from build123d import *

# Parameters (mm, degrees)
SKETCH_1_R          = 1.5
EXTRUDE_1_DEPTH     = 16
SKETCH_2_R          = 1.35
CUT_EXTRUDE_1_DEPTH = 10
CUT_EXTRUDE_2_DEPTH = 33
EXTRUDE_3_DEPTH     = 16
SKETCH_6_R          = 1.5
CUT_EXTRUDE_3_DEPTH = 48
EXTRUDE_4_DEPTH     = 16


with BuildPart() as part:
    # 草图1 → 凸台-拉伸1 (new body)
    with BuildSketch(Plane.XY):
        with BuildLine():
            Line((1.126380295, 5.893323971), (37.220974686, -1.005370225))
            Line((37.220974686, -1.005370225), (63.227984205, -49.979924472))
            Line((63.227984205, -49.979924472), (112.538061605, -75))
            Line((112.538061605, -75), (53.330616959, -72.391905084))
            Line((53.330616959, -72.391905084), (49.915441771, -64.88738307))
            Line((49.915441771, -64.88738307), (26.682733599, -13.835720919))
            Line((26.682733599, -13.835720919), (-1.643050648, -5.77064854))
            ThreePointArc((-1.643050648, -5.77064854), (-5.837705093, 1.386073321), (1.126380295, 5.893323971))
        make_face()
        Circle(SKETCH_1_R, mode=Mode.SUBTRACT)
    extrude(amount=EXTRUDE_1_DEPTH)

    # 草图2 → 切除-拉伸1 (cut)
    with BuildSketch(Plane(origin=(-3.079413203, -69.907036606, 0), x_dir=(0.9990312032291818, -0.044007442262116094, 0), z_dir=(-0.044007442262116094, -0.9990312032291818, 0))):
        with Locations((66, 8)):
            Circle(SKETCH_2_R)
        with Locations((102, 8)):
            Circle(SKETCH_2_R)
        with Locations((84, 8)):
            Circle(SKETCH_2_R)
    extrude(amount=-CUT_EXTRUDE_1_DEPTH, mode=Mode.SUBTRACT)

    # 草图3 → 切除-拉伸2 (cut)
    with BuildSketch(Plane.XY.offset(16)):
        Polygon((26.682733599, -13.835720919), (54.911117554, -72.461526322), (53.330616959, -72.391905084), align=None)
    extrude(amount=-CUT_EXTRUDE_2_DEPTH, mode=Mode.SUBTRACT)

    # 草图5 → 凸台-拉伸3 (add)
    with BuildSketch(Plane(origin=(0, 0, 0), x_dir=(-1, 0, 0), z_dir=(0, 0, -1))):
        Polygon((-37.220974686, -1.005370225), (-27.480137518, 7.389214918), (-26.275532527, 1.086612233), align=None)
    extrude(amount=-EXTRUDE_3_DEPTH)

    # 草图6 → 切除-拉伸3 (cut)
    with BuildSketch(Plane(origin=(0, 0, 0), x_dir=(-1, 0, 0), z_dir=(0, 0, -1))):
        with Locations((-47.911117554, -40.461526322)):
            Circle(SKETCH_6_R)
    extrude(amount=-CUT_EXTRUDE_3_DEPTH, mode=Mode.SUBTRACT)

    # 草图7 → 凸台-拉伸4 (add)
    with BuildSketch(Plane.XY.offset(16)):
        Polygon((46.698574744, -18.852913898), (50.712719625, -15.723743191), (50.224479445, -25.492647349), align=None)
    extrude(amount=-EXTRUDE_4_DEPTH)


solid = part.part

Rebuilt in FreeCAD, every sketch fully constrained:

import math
import FreeCAD as App
import Part
import Sketcher
from FreeCAD import Vector

doc = App.newDocument("Part")
body = doc.addObject("PartDesign::Body", "Body")

sketch1 = body.newObject("Sketcher::SketchObject", "Sketch")
sketch1.AttachmentSupport = (doc.getObject("XY_Plane"), [""])
sketch1.MapMode = "FlatFace"
sketch1.addGeometry(Part.LineSegment(Vector(37.2, -1, 0), Vector(1.1, 5.9, 0)), False)
sketch1.addGeometry(Part.ArcOfCircle(Part.Circle(Vector(0, 0, 0), Vector(0, 0, 1), 6), math.radians(79), math.radians(254)), False)
sketch1.addGeometry(Part.LineSegment(Vector(-1.6, -5.8, 0), Vector(26.7, -13.8, 0)), False)
sketch1.addGeometry(Part.LineSegment(Vector(26.7, -13.8, 0), Vector(49.9, -64.9, 0)), False)
sketch1.addGeometry(Part.LineSegment(Vector(49.9, -64.9, 0), Vector(53.3, -72.4, 0)), False)
sketch1.addGeometry(Part.LineSegment(Vector(53.3, -72.4, 0), Vector(112.5, -75, 0)), False)
sketch1.addGeometry(Part.LineSegment(Vector(112.5, -75, 0), Vector(63.2, -50, 0)), False)
sketch1.addGeometry(Part.LineSegment(Vector(63.2, -50, 0), Vector(37.2, -1, 0)), False)
sketch1.addGeometry(Part.Circle(Vector(0, 0, 0), Vector(0, 0, 1), 1.5), False)
sketch1.addConstraint(Sketcher.Constraint("Tangent", 0, 2, 1, 1))
sketch1.addConstraint(Sketcher.Constraint("Tangent", 1, 2, 2, 1))
sketch1.addConstraint(Sketcher.Constraint("Coincident", 2, 2, 3, 1))
sketch1.addConstraint(Sketcher.Constraint("Coincident", 3, 2, 4, 1))
sketch1.addConstraint(Sketcher.Constraint("Coincident", 4, 2, 5, 1))
sketch1.addConstraint(Sketcher.Constraint("Coincident", 5, 2, 6, 1))
sketch1.addConstraint(Sketcher.Constraint("Coincident", 6, 2, 7, 1))
sketch1.addConstraint(Sketcher.Constraint("Coincident", 7, 2, 0, 1))
sketch1.addConstraint(Sketcher.Constraint("Coincident", 1, 3, -1, 1))
sketch1.addConstraint(Sketcher.Constraint("Coincident", 8, 3, -1, 1))
sketch1.addConstraint(Sketcher.Constraint("Parallel", 3, 4))
sketch1.addConstraint(Sketcher.Constraint("Diameter", 8, 3.0))
sketch1.addConstraint(Sketcher.Constraint("Radius", 1, 6.0))
sketch1.addConstraint(Sketcher.Constraint("DistanceY", 5, 2, -1, 1, 75.0))
sketch1.addConstraint(Sketcher.Constraint("Distance", 0, 36.747949))
sketch1.addConstraint(Sketcher.Constraint("Distance", 3, 56.08949))
sketch1.addConstraint(Sketcher.Constraint("Distance", 5, 59.26486))
sketch1.addConstraint(Sketcher.Constraint("DistanceX", -1, 1, 0, 2, 1.12638))
sketch1.addConstraint(Sketcher.Constraint("DistanceX", 1, 2, -1, 1, 1.643051))
sketch1.addConstraint(Sketcher.Constraint("DistanceY", 2, 2, -1, 1, 13.835721))
sketch1.addConstraint(Sketcher.Constraint("DistanceX", -1, 1, 3, 2, 49.915442))
sketch1.addConstraint(Sketcher.Constraint("DistanceX", -1, 1, 5, 2, 112.538062))
sketch1.addConstraint(Sketcher.Constraint("DistanceY", 3, 2, 6, 2, 14.907459))
sketch1.addConstraint(Sketcher.Constraint("DistanceX", 2, 2, 6, 2, 36.545251))
pad1 = body.newObject("PartDesign::Pad", "Pad")
pad1.Profile = sketch1
pad1.Length = 16

sketch2 = body.newObject("Sketcher::SketchObject", "Sketch001")
sketch2.Placement = App.Placement(Vector(-3.079413, -69.907037, 0), App.Rotation(Vector(0.999031203, -0.044007442, 0), Vector(0, 0, 1), Vector(-0.044007442, -0.999031203, 0), "ZXY"))
sketch2.addGeometry(Part.Circle(Vector(66, 8, 0), Vector(0, 0, 1), 1.4), False)
sketch2.addGeometry(Part.Circle(Vector(102, 8, 0), Vector(0, 0, 1), 1.4), False)
sketch2.addGeometry(Part.Circle(Vector(84, 8, 0), Vector(0, 0, 1), 1.4), False)
sketch2.addConstraint(Sketcher.Constraint("Equal", 0, 1))
sketch2.addConstraint(Sketcher.Constraint("Equal", 1, 2))
sketch2.addConstraint(Sketcher.Constraint("Horizontal", 0, 3, 1, 3))
sketch2.addConstraint(Sketcher.Constraint("Horizontal", 1, 3, 2, 3))
sketch2.addConstraint(Sketcher.Constraint("Diameter", 0, 2.7))
sketch2.addConstraint(Sketcher.Constraint("DistanceX", -1, 1, 0, 3, 66.0))
sketch2.addConstraint(Sketcher.Constraint("DistanceY", -1, 1, 0, 3, 8.0))
sketch2.addConstraint(Sketcher.Constraint("DistanceX", -1, 1, 1, 3, 102.0))
sketch2.addConstraint(Sketcher.Constraint("DistanceX", -1, 1, 2, 3, 84.0))
pocket1 = body.newObject("PartDesign::Pocket", "Pocket")
pocket1.Profile = sketch2
pocket1.Length = 10

sketch3 = body.newObject("Sketcher::SketchObject", "Sketch002")
sketch3.AttachmentSupport = (doc.getObject("XY_Plane"), [""])
sketch3.MapMode = "FlatFace"
sketch3.AttachmentOffset = App.Placement(Vector(0, 0, 16), App.Rotation())
sketch3.addGeometry(Part.LineSegment(Vector(54.9, -72.5, 0), Vector(26.7, -13.8, 0)), False)
sketch3.addGeometry(Part.LineSegment(Vector(26.7, -13.8, 0), Vector(53.3, -72.4, 0)), False)
sketch3.addGeometry(Part.LineSegment(Vector(53.3, -72.4, 0), Vector(54.9, -72.5, 0)), False)
sketch3.addConstraint(Sketcher.Constraint("Coincident", 0, 2, 1, 1))
sketch3.addConstraint(Sketcher.Constraint("Coincident", 1, 2, 2, 1))
sketch3.addConstraint(Sketcher.Constraint("Coincident", 2, 2, 0, 1))
sketch3.addConstraint(Sketcher.Constraint("DistanceX", 1, 2, 2, 2, 1.580501))
sketch3.addConstraint(Sketcher.Constraint("DistanceY", 0, 2, -1, 1, 13.835721))
sketch3.addConstraint(Sketcher.Constraint("DistanceY", 2, 2, 1, 2, 0.069621))
sketch3.addConstraint(Sketcher.Constraint("Distance", 0, 65.067862))
sketch3.addConstraint(Sketcher.Constraint("Distance", 1, 64.334566))
sketch3.addConstraint(Sketcher.Constraint("DistanceX", -1, 1, 0, 2, 26.682734))
pocket2 = body.newObject("PartDesign::Pocket", "Pocket001")
pocket2.Profile = sketch3
pocket2.Length = 33

sketch4 = body.newObject("Sketcher::SketchObject", "Sketch003")
sketch4.AttachmentSupport = (doc.getObject("XY_Plane"), [""])
sketch4.MapMode = "FlatFace"
sketch4.addGeometry(Part.LineSegment(Vector(27, 7, 0), Vector(37, -1, 0)), False)
sketch4.addGeometry(Part.LineSegment(Vector(37, -1, 0), Vector(26, 1, 0)), False)
sketch4.addGeometry(Part.LineSegment(Vector(26, 1, 0), Vector(27, 7, 0)), False)
sketch4.addConstraint(Sketcher.Constraint("Coincident", 0, 2, 1, 1))
sketch4.addConstraint(Sketcher.Constraint("Coincident", 1, 2, 2, 1))
sketch4.addConstraint(Sketcher.Constraint("Coincident", 2, 2, 0, 1))
sketch4.addConstraint(Sketcher.Constraint("Perpendicular", 1, 2))
sketch4.addConstraint(Sketcher.Constraint("DistanceY", 0, 2, -1, 1, 1.00537))
sketch4.addConstraint(Sketcher.Constraint("Distance", 0, 12.858965))
sketch4.addConstraint(Sketcher.Constraint("Distance", 1, 11.143567))
sketch4.addConstraint(Sketcher.Constraint("DistanceX", -1, 1, 0, 2, 37.220975))
sketch4.addConstraint(Sketcher.Constraint("DistanceX", -1, 1, 1, 2, 26.275533))
pad2 = body.newObject("PartDesign::Pad", "Pad001")
pad2.Profile = sketch4
pad2.Length = 16

sketch5 = body.newObject("Sketcher::SketchObject", "Sketch004")
sketch5.AttachmentSupport = (doc.getObject("XY_Plane"), [""])
sketch5.MapMode = "FlatFace"
sketch5.addGeometry(Part.Circle(Vector(47.9, -40.5, 0), Vector(0, 0, 1), 1.5), False)
sketch5.addConstraint(Sketcher.Constraint("Diameter", 0, 3.0))
sketch5.addConstraint(Sketcher.Constraint("DistanceX", -1, 1, 0, 3, 47.911118))
sketch5.addConstraint(Sketcher.Constraint("DistanceY", 0, 3, -1, 1, 40.461526))
pocket3 = body.newObject("PartDesign::Pocket", "Pocket002")
pocket3.Profile = sketch5
pocket3.Length = 48
pocket3.Reversed = True

sketch6 = body.newObject("Sketcher::SketchObject", "Sketch005")
sketch6.AttachmentSupport = (doc.getObject("XY_Plane"), [""])
sketch6.MapMode = "FlatFace"
sketch6.AttachmentOffset = App.Placement(Vector(0, 0, 16), App.Rotation())
sketch6.addGeometry(Part.LineSegment(Vector(51, -16, 0), Vector(47, -19, 0)), False)
sketch6.addGeometry(Part.LineSegment(Vector(47, -19, 0), Vector(50, -25, 0)), False)
sketch6.addGeometry(Part.LineSegment(Vector(50, -25, 0), Vector(51, -16, 0)), False)
sketch6.addConstraint(Sketcher.Constraint("Coincident", 0, 2, 1, 1))
sketch6.addConstraint(Sketcher.Constraint("Coincident", 1, 2, 2, 1))
sketch6.addConstraint(Sketcher.Constraint("Coincident", 2, 2, 0, 1))
sketch6.addConstraint(Sketcher.Constraint("Distance", 1, 7.51785))
sketch6.addConstraint(Sketcher.Constraint("DistanceX", -1, 1, 1, 2, 50.224479))
sketch6.addConstraint(Sketcher.Constraint("DistanceX", -1, 1, 2, 2, 50.71272))
sketch6.addConstraint(Sketcher.Constraint("DistanceY", 0, 2, 2, 2, 3.129171))
sketch6.addConstraint(Sketcher.Constraint("Distance", 0, 5.089702))
sketch6.addConstraint(Sketcher.Constraint("DistanceY", 0, 2, -1, 1, 18.852914))
pad3 = body.newObject("PartDesign::Pad", "Pad002")
pad3.Profile = sketch6
pad3.Length = 16
pad3.Reversed = True

doc.recompute()
